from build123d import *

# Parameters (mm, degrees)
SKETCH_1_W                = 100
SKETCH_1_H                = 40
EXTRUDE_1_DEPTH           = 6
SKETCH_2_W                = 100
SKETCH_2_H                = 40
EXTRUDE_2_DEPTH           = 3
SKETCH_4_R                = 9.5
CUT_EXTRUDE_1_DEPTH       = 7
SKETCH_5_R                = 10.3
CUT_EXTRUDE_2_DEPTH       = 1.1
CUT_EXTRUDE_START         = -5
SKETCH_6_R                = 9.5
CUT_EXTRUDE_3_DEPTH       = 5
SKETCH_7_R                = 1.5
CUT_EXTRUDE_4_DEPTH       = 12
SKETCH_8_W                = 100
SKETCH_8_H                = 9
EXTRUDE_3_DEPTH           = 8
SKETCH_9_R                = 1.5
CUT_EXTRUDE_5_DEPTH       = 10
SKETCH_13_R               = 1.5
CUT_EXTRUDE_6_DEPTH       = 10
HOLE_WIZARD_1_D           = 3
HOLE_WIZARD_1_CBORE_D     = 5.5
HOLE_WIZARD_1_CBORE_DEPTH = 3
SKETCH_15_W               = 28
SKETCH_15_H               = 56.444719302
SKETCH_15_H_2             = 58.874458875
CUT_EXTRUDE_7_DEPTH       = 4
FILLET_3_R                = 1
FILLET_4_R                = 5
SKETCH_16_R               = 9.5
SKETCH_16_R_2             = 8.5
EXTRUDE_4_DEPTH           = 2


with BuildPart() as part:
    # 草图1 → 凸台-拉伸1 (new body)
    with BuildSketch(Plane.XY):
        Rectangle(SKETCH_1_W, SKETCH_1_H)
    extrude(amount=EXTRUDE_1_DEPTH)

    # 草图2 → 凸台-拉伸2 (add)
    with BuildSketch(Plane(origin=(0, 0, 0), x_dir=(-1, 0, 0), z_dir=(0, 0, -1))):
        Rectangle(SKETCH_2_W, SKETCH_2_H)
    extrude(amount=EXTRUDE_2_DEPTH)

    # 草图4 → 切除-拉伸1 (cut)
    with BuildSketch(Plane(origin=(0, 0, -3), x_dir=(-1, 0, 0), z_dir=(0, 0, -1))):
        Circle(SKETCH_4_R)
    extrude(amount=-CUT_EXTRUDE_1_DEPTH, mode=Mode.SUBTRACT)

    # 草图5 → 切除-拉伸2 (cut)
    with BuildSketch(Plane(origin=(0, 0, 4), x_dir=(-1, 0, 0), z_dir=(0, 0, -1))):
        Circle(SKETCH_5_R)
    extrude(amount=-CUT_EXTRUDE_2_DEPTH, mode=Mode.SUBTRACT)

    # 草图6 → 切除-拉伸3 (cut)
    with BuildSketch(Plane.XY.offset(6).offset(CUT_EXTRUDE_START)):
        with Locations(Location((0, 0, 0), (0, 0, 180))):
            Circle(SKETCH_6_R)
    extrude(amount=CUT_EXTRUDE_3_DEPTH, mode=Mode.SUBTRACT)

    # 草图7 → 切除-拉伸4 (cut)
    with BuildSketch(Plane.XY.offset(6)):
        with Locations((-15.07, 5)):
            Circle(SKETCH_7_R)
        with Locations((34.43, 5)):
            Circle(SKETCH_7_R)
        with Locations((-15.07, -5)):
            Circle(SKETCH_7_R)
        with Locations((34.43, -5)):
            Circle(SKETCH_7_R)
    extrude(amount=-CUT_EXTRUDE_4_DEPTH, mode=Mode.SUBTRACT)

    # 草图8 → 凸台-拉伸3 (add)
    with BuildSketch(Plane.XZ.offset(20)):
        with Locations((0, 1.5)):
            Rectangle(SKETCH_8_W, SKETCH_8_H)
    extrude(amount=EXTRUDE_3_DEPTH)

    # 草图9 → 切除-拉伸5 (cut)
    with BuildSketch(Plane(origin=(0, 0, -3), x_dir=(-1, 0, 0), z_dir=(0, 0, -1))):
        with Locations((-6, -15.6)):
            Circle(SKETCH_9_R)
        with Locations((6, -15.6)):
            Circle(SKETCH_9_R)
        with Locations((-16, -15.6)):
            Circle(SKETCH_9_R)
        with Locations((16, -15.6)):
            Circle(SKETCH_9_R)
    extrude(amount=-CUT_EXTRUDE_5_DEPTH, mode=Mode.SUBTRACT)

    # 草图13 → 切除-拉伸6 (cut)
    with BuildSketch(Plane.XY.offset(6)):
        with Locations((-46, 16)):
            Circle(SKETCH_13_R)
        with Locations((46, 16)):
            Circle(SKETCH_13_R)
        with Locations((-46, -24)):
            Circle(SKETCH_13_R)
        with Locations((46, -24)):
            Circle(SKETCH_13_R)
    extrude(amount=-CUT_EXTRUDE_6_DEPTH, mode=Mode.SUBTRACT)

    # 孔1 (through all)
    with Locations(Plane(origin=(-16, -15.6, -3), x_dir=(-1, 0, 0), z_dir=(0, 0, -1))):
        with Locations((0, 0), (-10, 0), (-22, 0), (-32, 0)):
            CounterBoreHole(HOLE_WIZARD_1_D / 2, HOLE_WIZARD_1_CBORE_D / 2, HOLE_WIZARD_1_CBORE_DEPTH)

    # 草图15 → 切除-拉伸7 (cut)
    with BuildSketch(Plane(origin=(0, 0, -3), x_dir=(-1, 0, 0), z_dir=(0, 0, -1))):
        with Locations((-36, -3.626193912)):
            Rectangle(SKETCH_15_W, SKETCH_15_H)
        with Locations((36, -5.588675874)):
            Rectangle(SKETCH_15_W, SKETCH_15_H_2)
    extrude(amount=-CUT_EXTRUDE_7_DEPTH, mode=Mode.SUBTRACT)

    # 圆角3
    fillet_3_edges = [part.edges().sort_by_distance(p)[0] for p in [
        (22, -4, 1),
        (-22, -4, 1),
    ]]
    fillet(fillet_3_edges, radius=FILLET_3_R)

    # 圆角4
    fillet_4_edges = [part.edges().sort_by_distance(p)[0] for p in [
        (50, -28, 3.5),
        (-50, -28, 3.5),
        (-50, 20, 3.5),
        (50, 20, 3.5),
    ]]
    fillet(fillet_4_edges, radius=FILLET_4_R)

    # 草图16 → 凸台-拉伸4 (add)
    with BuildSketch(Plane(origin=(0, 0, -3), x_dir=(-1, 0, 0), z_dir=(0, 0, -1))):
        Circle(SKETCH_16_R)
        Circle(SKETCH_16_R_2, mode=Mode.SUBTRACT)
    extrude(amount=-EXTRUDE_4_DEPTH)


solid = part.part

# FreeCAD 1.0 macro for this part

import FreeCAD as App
import Part
import Sketcher
Q = App.Units.Quantity


def edges_at(feature, points):
    """Names of the edges that pass closest to the given points."""
    edges = feature.Shape.Edges
    near = lambda p: min(range(len(edges)), key=lambda i: edges[i].distToShape(Part.Vertex(*p))[0])
    return sorted({f"Edge{near(p) + 1}" for p in points})

doc = App.newDocument("Part")
body = doc.addObject("PartDesign::Body", "Body")

# Sketch on XY plane
sketch1 = body.newObject("Sketcher::SketchObject", "Sketch")
sketch1.AttachmentSupport = (doc.getObject("XY_Plane"), [""])
sketch1.MapMode = "FlatFace"
sketch1.addGeometry(Part.LineSegment(App.Vector(-50, 20, 0), App.Vector(-50, -20, 0)), False)
sketch1.addGeometry(Part.LineSegment(App.Vector(-50, -20, 0), App.Vector(50, -20, 0)), False)
sketch1.addGeometry(Part.LineSegment(App.Vector(50, -20, 0), App.Vector(50, 20, 0)), False)
sketch1.addGeometry(Part.LineSegment(App.Vector(50, 20, 0), App.Vector(-50, 20, 0)), False)
sketch1.addConstraint(Sketcher.Constraint("Coincident", 0, 2, 1, 1))
sketch1.addConstraint(Sketcher.Constraint("Coincident", 1, 2, 2, 1))
sketch1.addConstraint(Sketcher.Constraint("Coincident", 2, 2, 3, 1))
sketch1.addConstraint(Sketcher.Constraint("Coincident", 3, 2, 0, 1))
sketch1.addConstraint(Sketcher.Constraint("Vertical", 0))
sketch1.addConstraint(Sketcher.Constraint("Horizontal", 1))
sketch1.addConstraint(Sketcher.Constraint("Vertical", 2))
sketch1.addConstraint(Sketcher.Constraint("Horizontal", 3))
sketch1.addConstraint(Sketcher.Constraint("Symmetric", 0, 2, 2, 2, -1, 1))
sketch1.addConstraint(Sketcher.Constraint("DistanceX", 1, 1, 1, 2, Q("100 mm")))
sketch1.addConstraint(Sketcher.Constraint("DistanceY", 0, 2, 0, 1, Q("40 mm")))
pad1 = body.newObject("PartDesign::Pad", "Pad")
pad1.Profile = sketch1
pad1.Length = 6

# Sketch on XY plane
sketch2 = body.newObject("Sketcher::SketchObject", "Sketch001")
sketch2.AttachmentSupport = (doc.getObject("XY_Plane"), [""])
sketch2.MapMode = "FlatFace"
sketch2.addGeometry(Part.LineSegment(App.Vector(50, 20, 0), App.Vector(50, -20, 0)), False)
sketch2.addGeometry(Part.LineSegment(App.Vector(50, -20, 0), App.Vector(-50, -20, 0)), False)
sketch2.addGeometry(Part.LineSegment(App.Vector(-50, -20, 0), App.Vector(-50, 20, 0)), False)
sketch2.addGeometry(Part.LineSegment(App.Vector(-50, 20, 0), App.Vector(50, 20, 0)), False)
sketch2.addConstraint(Sketcher.Constraint("Coincident", 0, 2, 1, 1))
sketch2.addConstraint(Sketcher.Constraint("Coincident", 1, 2, 2, 1))
sketch2.addConstraint(Sketcher.Constraint("Coincident", 2, 2, 3, 1))
sketch2.addConstraint(Sketcher.Constraint("Coincident", 3, 2, 0, 1))
sketch2.addConstraint(Sketcher.Constraint("Vertical", 0))
sketch2.addConstraint(Sketcher.Constraint("Horizontal", 1))
sketch2.addConstraint(Sketcher.Constraint("Vertical", 2))
sketch2.addConstraint(Sketcher.Constraint("Horizontal", 3))
sketch2.addConstraint(Sketcher.Constraint("Symmetric", 0, 2, 2, 2, -1, 1))
sketch2.addConstraint(Sketcher.Constraint("DistanceX", 1, 2, 1, 1, Q("100 mm")))
sketch2.addConstraint(Sketcher.Constraint("DistanceY", 0, 2, 0, 1, Q("40 mm")))
pad2 = body.newObject("PartDesign::Pad", "Pad001")
pad2.Profile = sketch2
pad2.Length = 3
pad2.Reversed = True

# Sketch on XY plane
sketch3 = body.newObject("Sketcher::SketchObject", "Sketch002")
sketch3.AttachmentSupport = (doc.getObject("XY_Plane"), [""])
sketch3.MapMode = "FlatFace"
sketch3.AttachmentOffset = App.Placement(App.Vector(0, 0, -3), App.Rotation())
sketch3.addGeometry(Part.Circle(App.Vector(0, 0, 0), App.Vector(0, 0, 1), 9.5), False)
sketch3.addConstraint(Sketcher.Constraint("Coincident", 0, 3, -1, 1))
sketch3.addConstraint(Sketcher.Constraint("Diameter", 0, Q("19 mm")))
pocket1 = body.newObject("PartDesign::Pocket", "Pocket")
pocket1.Profile = sketch3
pocket1.Length = 7
pocket1.Reversed = True

# Sketch on XY plane
sketch4 = body.newObject("Sketcher::SketchObject", "Sketch003")
sketch4.AttachmentSupport = (doc.getObject("XY_Plane"), [""])
sketch4.MapMode = "FlatFace"
sketch4.AttachmentOffset = App.Placement(App.Vector(0, 0, 4), App.Rotation())
sketch4.addGeometry(Part.Circle(App.Vector(0, 0, 0), App.Vector(0, 0, 1), 10.3), False)
sketch4.addConstraint(Sketcher.Constraint("Coincident", 0, 3, -1, 1))
sketch4.addConstraint(Sketcher.Constraint("Diameter", 0, Q("20.6 mm")))
pocket2 = body.newObject("PartDesign::Pocket", "Pocket001")
pocket2.Profile = sketch4
pocket2.Length = 1.1
pocket2.Reversed = True

# Sketch on XY plane
sketch5 = body.newObject("Sketcher::SketchObject", "Sketch004")
sketch5.AttachmentSupport = (doc.getObject("XY_Plane"), [""])
sketch5.MapMode = "FlatFace"
sketch5.AttachmentOffset = App.Placement(App.Vector(0, 0, 1), App.Rotation())
sketch5.addGeometry(Part.Circle(App.Vector(0, 0, 0), App.Vector(0, 0, 1), 9.5), False)
sketch5.addConstraint(Sketcher.Constraint("Coincident", 0, 3, -1, 1))
sketch5.addConstraint(Sketcher.Constraint("Diameter", 0, Q("19 mm")))
pocket3 = body.newObject("PartDesign::Pocket", "Pocket002")
pocket3.Profile = sketch5
pocket3.Length = 5
pocket3.Reversed = True

# Sketch on XY plane
sketch6 = body.newObject("Sketcher::SketchObject", "Sketch005")
sketch6.AttachmentSupport = (doc.getObject("XY_Plane"), [""])
sketch6.MapMode = "FlatFace"
sketch6.AttachmentOffset = App.Placement(App.Vector(0, 0, 6), App.Rotation())
sketch6.addGeometry(Part.Circle(App.Vector(-15.07, 5, 0), App.Vector(0, 0, 1), 1.5), False)
sketch6.addGeometry(Part.Circle(App.Vector(34.43, 5, 0), App.Vector(0, 0, 1), 1.5), False)
sketch6.addGeometry(Part.Circle(App.Vector(-15.07, -5, 0), App.Vector(0, 0, 1), 1.5), False)
sketch6.addGeometry(Part.Circle(App.Vector(34.43, -5, 0), App.Vector(0, 0, 1), 1.5), False)
sketch6.addConstraint(Sketcher.Constraint("Equal", 0, 1))
sketch6.addConstraint(Sketcher.Constraint("Equal", 1, 2))
sketch6.addConstraint(Sketcher.Constraint("Equal", 2, 3))
sketch6.addConstraint(Sketcher.Constraint("Symmetric", 0, 3, 2, 3, -1))
sketch6.addConstraint(Sketcher.Constraint("Symmetric", 1, 3, 3, 3, -1))
sketch6.addConstraint(Sketcher.Constraint("Horizontal", 0, 3, 1, 3))
sketch6.addConstraint(Sketcher.Constraint("Diameter", 0, Q("3 mm")))
sketch6.addConstraint(Sketcher.Constraint("DistanceY", -1, 1, 0, 3, Q("5 mm")))
sketch6.addConstraint(Sketcher.Constraint("DistanceX", 0, 3, 1, 3, Q("49.5 mm")))
sketch6.addConstraint(Sketcher.Constraint("DistanceX", 0, 3, -1, 1, Q("15.07 mm")))
pocket4 = body.newObject("PartDesign::Pocket", "Pocket003")
pocket4.Profile = sketch6
pocket4.Length = 12

# Sketch on XZ plane
sketch7 = body.newObject("Sketcher::SketchObject", "Sketch006")
sketch7.AttachmentSupport = (doc.getObject("XZ_Plane"), [""])
sketch7.MapMode = "FlatFace"
sketch7.AttachmentOffset = App.Placement(App.Vector(0, 0, 20), App.Rotation())
sketch7.addGeometry(Part.LineSegment(App.Vector(-50, 6, 0), App.Vector(-50, -3, 0)), False)
sketch7.addGeometry(Part.LineSegment(App.Vector(-50, -3, 0), App.Vector(50, -3, 0)), False)
sketch7.addGeometry(Part.LineSegment(App.Vector(50, -3, 0), App.Vector(50, 6, 0)), False)
sketch7.addGeometry(Part.LineSegment(App.Vector(50, 6, 0), App.Vector(-50, 6, 0)), False)
sketch7.addConstraint(Sketcher.Constraint("Coincident", 0, 2, 1, 1))
sketch7.addConstraint(Sketcher.Constraint("Coincident", 1, 2, 2, 1))
sketch7.addConstraint(Sketcher.Constraint("Coincident", 2, 2, 3, 1))
sketch7.addConstraint(Sketcher.Constraint("Coincident", 3, 2, 0, 1))
sketch7.addConstraint(Sketcher.Constraint("Vertical", 0))
sketch7.addConstraint(Sketcher.Constraint("Horizontal", 1))
sketch7.addConstraint(Sketcher.Constraint("Vertical", 2))
sketch7.addConstraint(Sketcher.Constraint("Horizontal", 3))
sketch7.addConstraint(Sketcher.Constraint("DistanceX", 1, 1, 1, 2, Q("100 mm")))
sketch7.addConstraint(Sketcher.Constraint("DistanceY", 0, 2, 0, 1, Q("9 mm")))
sketch7.addConstraint(Sketcher.Constraint("DistanceX", 0, 2, -1, 1, Q("50 mm")))
sketch7.addConstraint(Sketcher.Constraint("DistanceY", 0, 2, -1, 1, Q("3 mm")))
pad3 = body.newObject("PartDesign::Pad", "Pad002")
pad3.Profile = sketch7
pad3.Length = 8

# Sketch on XY plane
sketch8 = body.newObject("Sketcher::SketchObject", "Sketch007")
sketch8.AttachmentSupport = (doc.getObject("XY_Plane"), [""])
sketch8.MapMode = "FlatFace"
sketch8.AttachmentOffset = App.Placement(App.Vector(0, 0, -3), App.Rotation())
sketch8.addGeometry(Part.Circle(App.Vector(6, -15.6, 0), App.Vector(0, 0, 1), 1.5), False)
sketch8.addGeometry(Part.Circle(App.Vector(-6, -15.6, 0), App.Vector(0, 0, 1), 1.5), False)
sketch8.addGeometry(Part.Circle(App.Vector(16, -15.6, 0), App.Vector(0, 0, 1), 1.5), False)
sketch8.addGeometry(Part.Circle(App.Vector(-16, -15.6, 0), App.Vector(0, 0, 1), 1.5), False)
sketch8.addConstraint(Sketcher.Constraint("Equal", 0, 1))
sketch8.addConstraint(Sketcher.Constraint("Equal", 1, 2))
sketch8.addConstraint(Sketcher.Constraint("Equal", 2, 3))
sketch8.addConstraint(Sketcher.Constraint("Symmetric", 0, 3, 1, 3, -2))
sketch8.addConstraint(Sketcher.Constraint("Symmetric", 2, 3, 3, 3, -2))
sketch8.addConstraint(Sketcher.Constraint("Horizontal", 1, 3, 2, 3))
sketch8.addConstraint(Sketcher.Constraint("Diameter", 0, Q("3 mm")))
sketch8.addConstraint(Sketcher.Constraint("DistanceX", -1, 1, 0, 3, Q("6 mm")))
sketch8.addConstraint(Sketcher.Constraint("DistanceX", -1, 1, 2, 3, Q("16 mm")))
sketch8.addConstraint(Sketcher.Constraint("DistanceY", 0, 3, -1, 1, Q("15.6 mm")))
pocket5 = body.newObject("PartDesign::Pocket", "Pocket004")
pocket5.Profile = sketch8
pocket5.Length = 10
pocket5.Reversed = True

# Sketch on XY plane
sketch9 = body.newObject("Sketcher::SketchObject", "Sketch008")
sketch9.AttachmentSupport = (doc.getObject("XY_Plane"), [""])
sketch9.MapMode = "FlatFace"
sketch9.AttachmentOffset = App.Placement(App.Vector(0, 0, 6), App.Rotation())
sketch9.addGeometry(Part.Circle(App.Vector(-46, 16, 0), App.Vector(0, 0, 1), 1.5), False)
sketch9.addGeometry(Part.Circle(App.Vector(46, 16, 0), App.Vector(0, 0, 1), 1.5), False)
sketch9.addGeometry(Part.Circle(App.Vector(-46, -24, 0), App.Vector(0, 0, 1), 1.5), False)
sketch9.addGeometry(Part.Circle(App.Vector(46, -24, 0), App.Vector(0, 0, 1), 1.5), False)
sketch9.addConstraint(Sketcher.Constraint("Equal", 0, 1))
sketch9.addConstraint(Sketcher.Constraint("Equal", 1, 2))
sketch9.addConstraint(Sketcher.Constraint("Equal", 2, 3))
sketch9.addConstraint(Sketcher.Constraint("Symmetric", 0, 3, 1, 3, -2))
sketch9.addConstraint(Sketcher.Constraint("Symmetric", 2, 3, 3, 3, -2))
sketch9.addConstraint(Sketcher.Constraint("Vertical", 0, 3, 2, 3))
sketch9.addConstraint(Sketcher.Constraint("Diameter", 0, Q("3 mm")))
sketch9.addConstraint(Sketcher.Constraint("DistanceX", 0, 3, -1, 1, Q("46 mm")))
sketch9.addConstraint(Sketcher.Constraint("DistanceY", -1, 1, 0, 3, Q("16 mm")))
sketch9.addConstraint(Sketcher.Constraint("DistanceY", 2, 3, -1, 1, Q("24 mm")))
pocket6 = body.newObject("PartDesign::Pocket", "Pocket005")
pocket6.Profile = sketch9
pocket6.Length = 10

# Sketch on XY plane
sketch10 = body.newObject("Sketcher::SketchObject", "Sketch009")
sketch10.AttachmentSupport = (doc.getObject("XY_Plane"), [""])
sketch10.MapMode = "FlatFace"
sketch10.AttachmentOffset = App.Placement(App.Vector(0, 0, -3), App.Rotation())
sketch10.addGeometry(Part.Circle(App.Vector(-16, -15.6, 0), App.Vector(0, 0, 1), 1.5), False)
sketch10.addGeometry(Part.Circle(App.Vector(-6, -15.6, 0), App.Vector(0, 0, 1), 1.5), False)
sketch10.addGeometry(Part.Circle(App.Vector(6, -15.6, 0), App.Vector(0, 0, 1), 1.5), False)
sketch10.addGeometry(Part.Circle(App.Vector(16, -15.6, 0), App.Vector(0, 0, 1), 1.5), False)
sketch10.addConstraint(Sketcher.Constraint("Equal", 0, 1))
sketch10.addConstraint(Sketcher.Constraint("Equal", 1, 2))
sketch10.addConstraint(Sketcher.Constraint("Equal", 2, 3))
sketch10.addConstraint(Sketcher.Constraint("Symmetric", 1, 3, 2, 3, -2))
sketch10.addConstraint(Sketcher.Constraint("Symmetric", 0, 3, 3, 3, -2))
sketch10.addConstraint(Sketcher.Constraint("Horizontal", 0, 3, 1, 3))
sketch10.addConstraint(Sketcher.Constraint("Diameter", 0, Q("3 mm")))
sketch10.addConstraint(Sketcher.Constraint("DistanceX", 0, 3, -1, 1, Q("16 mm")))
sketch10.addConstraint(Sketcher.Constraint("DistanceX", 1, 3, -1, 1, Q("6 mm")))
sketch10.addConstraint(Sketcher.Constraint("DistanceY", 0, 3, -1, 1, Q("15.6 mm")))
doc.recompute()
hole = body.newObject("PartDesign::Hole", "Hole")
hole.Profile = sketch10
hole.ThreadType = "None"
hole.Diameter = 3
hole.DepthType = "ThroughAll"
hole.HoleCutType = "Counterbore"
hole.HoleCutDiameter = 5.5
hole.HoleCutDepth = 3
hole.Reversed = True

# Sketch on XY plane
sketch11 = body.newObject("Sketcher::SketchObject", "Sketch010")
sketch11.AttachmentSupport = (doc.getObject("XY_Plane"), [""])
sketch11.MapMode = "FlatFace"
sketch11.AttachmentOffset = App.Placement(App.Vector(0, 0, -3), App.Rotation())
sketch11.addGeometry(Part.LineSegment(App.Vector(50, 24.596166, 0), App.Vector(50, -31.848554, 0)), False)
sketch11.addGeometry(Part.LineSegment(App.Vector(50, -31.848554, 0), App.Vector(22, -31.848554, 0)), False)
sketch11.addGeometry(Part.LineSegment(App.Vector(22, -31.848554, 0), App.Vector(22, 24.596166, 0)), False)
sketch11.addGeometry(Part.LineSegment(App.Vector(22, 24.596166, 0), App.Vector(50, 24.596166, 0)), False)
sketch11.addGeometry(Part.LineSegment(App.Vector(-22, 23.848554, 0), App.Vector(-22, -35.025905, 0)), False)
sketch11.addGeometry(Part.LineSegment(App.Vector(-22, -35.025905, 0), App.Vector(-50, -35.025905, 0)), False)
sketch11.addGeometry(Part.LineSegment(App.Vector(-50, -35.025905, 0), App.Vector(-50, 23.848554, 0)), False)
sketch11.addGeometry(Part.LineSegment(App.Vector(-50, 23.848554, 0), App.Vector(-22, 23.848554, 0)), False)
sketch11.addConstraint(Sketcher.Constraint("Coincident", 0, 2, 1, 1))
sketch11.addConstraint(Sketcher.Constraint("Coincident", 1, 2, 2, 1))
sketch11.addConstraint(Sketcher.Constraint("Coincident", 2, 2, 3, 1))
sketch11.addConstraint(Sketcher.Constraint("Coincident", 3, 2, 0, 1))
sketch11.addConstraint(Sketcher.Constraint("Coincident", 4, 2, 5, 1))
sketch11.addConstraint(Sketcher.Constraint("Coincident", 5, 2, 6, 1))
sketch11.addConstraint(Sketcher.Constraint("Coincident", 6, 2, 7, 1))
sketch11.addConstraint(Sketcher.Constraint("Coincident", 7, 2, 4, 1))
sketch11.addConstraint(Sketcher.Constraint("Vertical", 0))
sketch11.addConstraint(Sketcher.Constraint("Horizontal", 1))
sketch11.addConstraint(Sketcher.Constraint("Vertical", 2))
sketch11.addConstraint(Sketcher.Constraint("Horizontal", 3))
sketch11.addConstraint(Sketcher.Constraint("Vertical", 4))
sketch11.addConstraint(Sketcher.Constraint("Horizontal", 5))
sketch11.addConstraint(Sketcher.Constraint("Vertical", 6))
sketch11.addConstraint(Sketcher.Constraint("Horizontal", 7))
sketch11.addConstraint(Sketcher.Constraint("Equal", 3, 5))
sketch11.addConstraint(Sketcher.Constraint("DistanceX", 1, 2, 1, 1, Q("28 mm")))
sketch11.addConstraint(Sketcher.Constraint("DistanceX", -1, 1, 0, 2, Q("50 mm")))
sketch11.addConstraint(Sketcher.Constraint("DistanceX", 4, 2, -1, 1, Q("22 mm")))
sketch11.addConstraint(Sketcher.Constraint("DistanceY", 0, 2, 0, 1, Q("56.444719 mm")))
sketch11.addConstraint(Sketcher.Constraint("DistanceY", 4, 2, 4, 1, Q("58.874459 mm")))
sketch11.addConstraint(Sketcher.Constraint("DistanceY", 4, 2, 1, 2, Q("3.177352 mm")))
sketch11.addConstraint(Sketcher.Constraint("DistanceY", 0, 2, -1, 1, Q("31.848554 mm")))
pocket7 = body.newObject("PartDesign::Pocket", "Pocket006")
pocket7.Profile = sketch11
pocket7.Length = 4
pocket7.Reversed = True
doc.recompute()

fillet = body.newObject("PartDesign::Fillet", "Fillet")
fillet.Base = (pocket7, edges_at(pocket7, [(22, -4, 1), (-22, -4, 1)]))
fillet.Radius = 1
doc.recompute()

fillet2 = body.newObject("PartDesign::Fillet", "Fillet001")
fillet2.Base = (fillet, edges_at(fillet, [
    (50, -28, 3.5),
    (-50, -28, 3.5),
    (-50, 20, 3.5),
    (50, 20, 3.5),
]))
fillet2.Radius = 5

# Sketch on XY plane
sketch12 = body.newObject("Sketcher::SketchObject", "Sketch011")
sketch12.AttachmentSupport = (doc.getObject("XY_Plane"), [""])
sketch12.MapMode = "FlatFace"
sketch12.AttachmentOffset = App.Placement(App.Vector(0, 0, -3), App.Rotation())
sketch12.addGeometry(Part.Circle(App.Vector(0, 0, 0), App.Vector(0, 0, 1), 9.5), False)
sketch12.addGeometry(Part.Circle(App.Vector(0, 0, 0), App.Vector(0, 0, 1), 8.5), False)
sketch12.addConstraint(Sketcher.Constraint("Coincident", 0, 3, -1, 1))
sketch12.addConstraint(Sketcher.Constraint("Coincident", 1, 3, -1, 1))
sketch12.addConstraint(Sketcher.Constraint("Diameter", 0, Q("19 mm")))
sketch12.addConstraint(Sketcher.Constraint("Diameter", 1, Q("17 mm")))
pad4 = body.newObject("PartDesign::Pad", "Pad003")
pad4.Profile = sketch12
pad4.Length = 2

doc.recompute()
